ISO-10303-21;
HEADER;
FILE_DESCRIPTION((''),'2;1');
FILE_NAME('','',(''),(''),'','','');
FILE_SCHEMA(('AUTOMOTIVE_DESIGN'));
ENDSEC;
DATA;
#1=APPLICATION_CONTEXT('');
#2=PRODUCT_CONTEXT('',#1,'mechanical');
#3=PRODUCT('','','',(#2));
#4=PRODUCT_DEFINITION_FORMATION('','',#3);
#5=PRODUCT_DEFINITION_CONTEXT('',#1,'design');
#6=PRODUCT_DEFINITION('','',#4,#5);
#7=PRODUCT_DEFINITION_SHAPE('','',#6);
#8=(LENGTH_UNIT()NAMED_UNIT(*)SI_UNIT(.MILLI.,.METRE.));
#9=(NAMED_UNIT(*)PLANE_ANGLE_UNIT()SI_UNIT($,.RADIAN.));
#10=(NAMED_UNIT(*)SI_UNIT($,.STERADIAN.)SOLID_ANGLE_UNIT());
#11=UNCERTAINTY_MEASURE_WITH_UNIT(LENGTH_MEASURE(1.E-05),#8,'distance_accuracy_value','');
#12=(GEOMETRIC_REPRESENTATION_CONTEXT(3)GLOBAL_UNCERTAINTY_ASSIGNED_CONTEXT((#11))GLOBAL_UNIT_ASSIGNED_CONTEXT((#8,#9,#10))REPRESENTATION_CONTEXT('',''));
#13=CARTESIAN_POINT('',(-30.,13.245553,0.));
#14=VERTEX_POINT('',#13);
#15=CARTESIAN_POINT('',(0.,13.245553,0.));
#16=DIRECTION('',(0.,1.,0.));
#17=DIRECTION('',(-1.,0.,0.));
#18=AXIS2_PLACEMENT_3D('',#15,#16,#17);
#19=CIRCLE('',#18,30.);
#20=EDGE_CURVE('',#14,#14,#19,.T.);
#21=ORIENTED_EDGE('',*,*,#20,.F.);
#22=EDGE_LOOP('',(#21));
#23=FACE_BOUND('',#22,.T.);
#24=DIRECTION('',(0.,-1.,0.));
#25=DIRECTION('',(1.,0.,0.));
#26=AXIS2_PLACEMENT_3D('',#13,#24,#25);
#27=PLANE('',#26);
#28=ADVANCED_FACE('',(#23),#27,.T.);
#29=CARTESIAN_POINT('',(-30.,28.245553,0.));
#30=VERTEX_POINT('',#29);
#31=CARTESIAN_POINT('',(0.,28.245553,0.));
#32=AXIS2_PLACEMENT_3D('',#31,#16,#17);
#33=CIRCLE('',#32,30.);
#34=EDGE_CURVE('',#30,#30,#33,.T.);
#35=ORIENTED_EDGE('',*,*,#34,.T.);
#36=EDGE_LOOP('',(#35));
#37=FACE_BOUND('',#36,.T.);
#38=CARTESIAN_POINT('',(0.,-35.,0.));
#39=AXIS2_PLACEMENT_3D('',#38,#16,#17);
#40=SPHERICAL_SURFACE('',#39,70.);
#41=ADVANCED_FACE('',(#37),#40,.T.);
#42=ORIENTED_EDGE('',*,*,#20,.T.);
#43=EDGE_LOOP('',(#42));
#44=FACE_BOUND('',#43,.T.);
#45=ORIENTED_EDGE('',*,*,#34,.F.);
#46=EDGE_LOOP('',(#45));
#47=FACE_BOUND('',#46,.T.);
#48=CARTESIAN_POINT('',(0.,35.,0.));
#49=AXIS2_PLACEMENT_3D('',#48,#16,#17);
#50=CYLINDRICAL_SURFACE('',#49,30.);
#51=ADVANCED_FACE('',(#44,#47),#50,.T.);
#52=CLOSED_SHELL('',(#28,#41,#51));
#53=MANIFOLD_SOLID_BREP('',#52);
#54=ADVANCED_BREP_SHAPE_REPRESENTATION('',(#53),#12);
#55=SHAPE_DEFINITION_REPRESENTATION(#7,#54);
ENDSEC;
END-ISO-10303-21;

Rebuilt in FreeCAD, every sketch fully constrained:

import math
import FreeCAD as App
import Part
import Sketcher
Q = App.Units.Quantity

doc = App.newDocument("Part")
body = doc.addObject("PartDesign::Body", "Body")

# Sketch on XY plane
sketch1 = body.newObject("Sketcher::SketchObject", "Sketch")
sketch1.AttachmentSupport = (doc.getObject("XY_Plane"), [""])
sketch1.MapMode = "FlatFace"
sketch1.addGeometry(Part.LineSegment(App.Vector(-30, 28, 0), App.Vector(-30, 13, 0)), False)
sketch1.addGeometry(Part.LineSegment(App.Vector(-30, 13, 0), App.Vector(0, 13, 0)), False)
sketch1.addGeometry(Part.LineSegment(App.Vector(0, 13, 0), App.Vector(0, 35, 0)), False)
sketch1.addGeometry(Part.ArcOfCircle(Part.Circle(App.Vector(0, -35, 0), App.Vector(0, 0, 1), 70), math.radians(90), math.radians(115)), False)
sketch1.addConstraint(Sketcher.Constraint("Coincident", 0, 2, 1, 1))
sketch1.addConstraint(Sketcher.Constraint("Coincident", 1, 2, 2, 1))
sketch1.addConstraint(Sketcher.Constraint("Coincident", 2, 2, 3, 1))
sketch1.addConstraint(Sketcher.Constraint("Coincident", 3, 2, 0, 1))
sketch1.addConstraint(Sketcher.Constraint("Vertical", 0))
sketch1.addConstraint(Sketcher.Constraint("Horizontal", 1))
sketch1.addConstraint(Sketcher.Constraint("Vertical", 2))
sketch1.addConstraint(Sketcher.Constraint("PointOnObject", 3, 3, -2))
sketch1.addConstraint(Sketcher.Constraint("PointOnObject", 1, 2, -2))
sketch1.addConstraint(Sketcher.Constraint("Radius", 3, Q("70 mm")))
sketch1.addConstraint(Sketcher.Constraint("DistanceX", 1, 1, 1, 2, Q("30 mm")))
sketch1.addConstraint(Sketcher.Constraint("DistanceY", 0, 2, 0, 1, Q("15 mm")))
sketch1.addConstraint(Sketcher.Constraint("DistanceY", 3, 3, -1, 1, Q("35 mm")))
revolution = body.newObject("PartDesign::Revolution", "Revolution")
revolution.Profile = sketch1
revolution.ReferenceAxis = (sketch1, ["V_Axis"])
revolution.Angle = 360

doc.recompute()
